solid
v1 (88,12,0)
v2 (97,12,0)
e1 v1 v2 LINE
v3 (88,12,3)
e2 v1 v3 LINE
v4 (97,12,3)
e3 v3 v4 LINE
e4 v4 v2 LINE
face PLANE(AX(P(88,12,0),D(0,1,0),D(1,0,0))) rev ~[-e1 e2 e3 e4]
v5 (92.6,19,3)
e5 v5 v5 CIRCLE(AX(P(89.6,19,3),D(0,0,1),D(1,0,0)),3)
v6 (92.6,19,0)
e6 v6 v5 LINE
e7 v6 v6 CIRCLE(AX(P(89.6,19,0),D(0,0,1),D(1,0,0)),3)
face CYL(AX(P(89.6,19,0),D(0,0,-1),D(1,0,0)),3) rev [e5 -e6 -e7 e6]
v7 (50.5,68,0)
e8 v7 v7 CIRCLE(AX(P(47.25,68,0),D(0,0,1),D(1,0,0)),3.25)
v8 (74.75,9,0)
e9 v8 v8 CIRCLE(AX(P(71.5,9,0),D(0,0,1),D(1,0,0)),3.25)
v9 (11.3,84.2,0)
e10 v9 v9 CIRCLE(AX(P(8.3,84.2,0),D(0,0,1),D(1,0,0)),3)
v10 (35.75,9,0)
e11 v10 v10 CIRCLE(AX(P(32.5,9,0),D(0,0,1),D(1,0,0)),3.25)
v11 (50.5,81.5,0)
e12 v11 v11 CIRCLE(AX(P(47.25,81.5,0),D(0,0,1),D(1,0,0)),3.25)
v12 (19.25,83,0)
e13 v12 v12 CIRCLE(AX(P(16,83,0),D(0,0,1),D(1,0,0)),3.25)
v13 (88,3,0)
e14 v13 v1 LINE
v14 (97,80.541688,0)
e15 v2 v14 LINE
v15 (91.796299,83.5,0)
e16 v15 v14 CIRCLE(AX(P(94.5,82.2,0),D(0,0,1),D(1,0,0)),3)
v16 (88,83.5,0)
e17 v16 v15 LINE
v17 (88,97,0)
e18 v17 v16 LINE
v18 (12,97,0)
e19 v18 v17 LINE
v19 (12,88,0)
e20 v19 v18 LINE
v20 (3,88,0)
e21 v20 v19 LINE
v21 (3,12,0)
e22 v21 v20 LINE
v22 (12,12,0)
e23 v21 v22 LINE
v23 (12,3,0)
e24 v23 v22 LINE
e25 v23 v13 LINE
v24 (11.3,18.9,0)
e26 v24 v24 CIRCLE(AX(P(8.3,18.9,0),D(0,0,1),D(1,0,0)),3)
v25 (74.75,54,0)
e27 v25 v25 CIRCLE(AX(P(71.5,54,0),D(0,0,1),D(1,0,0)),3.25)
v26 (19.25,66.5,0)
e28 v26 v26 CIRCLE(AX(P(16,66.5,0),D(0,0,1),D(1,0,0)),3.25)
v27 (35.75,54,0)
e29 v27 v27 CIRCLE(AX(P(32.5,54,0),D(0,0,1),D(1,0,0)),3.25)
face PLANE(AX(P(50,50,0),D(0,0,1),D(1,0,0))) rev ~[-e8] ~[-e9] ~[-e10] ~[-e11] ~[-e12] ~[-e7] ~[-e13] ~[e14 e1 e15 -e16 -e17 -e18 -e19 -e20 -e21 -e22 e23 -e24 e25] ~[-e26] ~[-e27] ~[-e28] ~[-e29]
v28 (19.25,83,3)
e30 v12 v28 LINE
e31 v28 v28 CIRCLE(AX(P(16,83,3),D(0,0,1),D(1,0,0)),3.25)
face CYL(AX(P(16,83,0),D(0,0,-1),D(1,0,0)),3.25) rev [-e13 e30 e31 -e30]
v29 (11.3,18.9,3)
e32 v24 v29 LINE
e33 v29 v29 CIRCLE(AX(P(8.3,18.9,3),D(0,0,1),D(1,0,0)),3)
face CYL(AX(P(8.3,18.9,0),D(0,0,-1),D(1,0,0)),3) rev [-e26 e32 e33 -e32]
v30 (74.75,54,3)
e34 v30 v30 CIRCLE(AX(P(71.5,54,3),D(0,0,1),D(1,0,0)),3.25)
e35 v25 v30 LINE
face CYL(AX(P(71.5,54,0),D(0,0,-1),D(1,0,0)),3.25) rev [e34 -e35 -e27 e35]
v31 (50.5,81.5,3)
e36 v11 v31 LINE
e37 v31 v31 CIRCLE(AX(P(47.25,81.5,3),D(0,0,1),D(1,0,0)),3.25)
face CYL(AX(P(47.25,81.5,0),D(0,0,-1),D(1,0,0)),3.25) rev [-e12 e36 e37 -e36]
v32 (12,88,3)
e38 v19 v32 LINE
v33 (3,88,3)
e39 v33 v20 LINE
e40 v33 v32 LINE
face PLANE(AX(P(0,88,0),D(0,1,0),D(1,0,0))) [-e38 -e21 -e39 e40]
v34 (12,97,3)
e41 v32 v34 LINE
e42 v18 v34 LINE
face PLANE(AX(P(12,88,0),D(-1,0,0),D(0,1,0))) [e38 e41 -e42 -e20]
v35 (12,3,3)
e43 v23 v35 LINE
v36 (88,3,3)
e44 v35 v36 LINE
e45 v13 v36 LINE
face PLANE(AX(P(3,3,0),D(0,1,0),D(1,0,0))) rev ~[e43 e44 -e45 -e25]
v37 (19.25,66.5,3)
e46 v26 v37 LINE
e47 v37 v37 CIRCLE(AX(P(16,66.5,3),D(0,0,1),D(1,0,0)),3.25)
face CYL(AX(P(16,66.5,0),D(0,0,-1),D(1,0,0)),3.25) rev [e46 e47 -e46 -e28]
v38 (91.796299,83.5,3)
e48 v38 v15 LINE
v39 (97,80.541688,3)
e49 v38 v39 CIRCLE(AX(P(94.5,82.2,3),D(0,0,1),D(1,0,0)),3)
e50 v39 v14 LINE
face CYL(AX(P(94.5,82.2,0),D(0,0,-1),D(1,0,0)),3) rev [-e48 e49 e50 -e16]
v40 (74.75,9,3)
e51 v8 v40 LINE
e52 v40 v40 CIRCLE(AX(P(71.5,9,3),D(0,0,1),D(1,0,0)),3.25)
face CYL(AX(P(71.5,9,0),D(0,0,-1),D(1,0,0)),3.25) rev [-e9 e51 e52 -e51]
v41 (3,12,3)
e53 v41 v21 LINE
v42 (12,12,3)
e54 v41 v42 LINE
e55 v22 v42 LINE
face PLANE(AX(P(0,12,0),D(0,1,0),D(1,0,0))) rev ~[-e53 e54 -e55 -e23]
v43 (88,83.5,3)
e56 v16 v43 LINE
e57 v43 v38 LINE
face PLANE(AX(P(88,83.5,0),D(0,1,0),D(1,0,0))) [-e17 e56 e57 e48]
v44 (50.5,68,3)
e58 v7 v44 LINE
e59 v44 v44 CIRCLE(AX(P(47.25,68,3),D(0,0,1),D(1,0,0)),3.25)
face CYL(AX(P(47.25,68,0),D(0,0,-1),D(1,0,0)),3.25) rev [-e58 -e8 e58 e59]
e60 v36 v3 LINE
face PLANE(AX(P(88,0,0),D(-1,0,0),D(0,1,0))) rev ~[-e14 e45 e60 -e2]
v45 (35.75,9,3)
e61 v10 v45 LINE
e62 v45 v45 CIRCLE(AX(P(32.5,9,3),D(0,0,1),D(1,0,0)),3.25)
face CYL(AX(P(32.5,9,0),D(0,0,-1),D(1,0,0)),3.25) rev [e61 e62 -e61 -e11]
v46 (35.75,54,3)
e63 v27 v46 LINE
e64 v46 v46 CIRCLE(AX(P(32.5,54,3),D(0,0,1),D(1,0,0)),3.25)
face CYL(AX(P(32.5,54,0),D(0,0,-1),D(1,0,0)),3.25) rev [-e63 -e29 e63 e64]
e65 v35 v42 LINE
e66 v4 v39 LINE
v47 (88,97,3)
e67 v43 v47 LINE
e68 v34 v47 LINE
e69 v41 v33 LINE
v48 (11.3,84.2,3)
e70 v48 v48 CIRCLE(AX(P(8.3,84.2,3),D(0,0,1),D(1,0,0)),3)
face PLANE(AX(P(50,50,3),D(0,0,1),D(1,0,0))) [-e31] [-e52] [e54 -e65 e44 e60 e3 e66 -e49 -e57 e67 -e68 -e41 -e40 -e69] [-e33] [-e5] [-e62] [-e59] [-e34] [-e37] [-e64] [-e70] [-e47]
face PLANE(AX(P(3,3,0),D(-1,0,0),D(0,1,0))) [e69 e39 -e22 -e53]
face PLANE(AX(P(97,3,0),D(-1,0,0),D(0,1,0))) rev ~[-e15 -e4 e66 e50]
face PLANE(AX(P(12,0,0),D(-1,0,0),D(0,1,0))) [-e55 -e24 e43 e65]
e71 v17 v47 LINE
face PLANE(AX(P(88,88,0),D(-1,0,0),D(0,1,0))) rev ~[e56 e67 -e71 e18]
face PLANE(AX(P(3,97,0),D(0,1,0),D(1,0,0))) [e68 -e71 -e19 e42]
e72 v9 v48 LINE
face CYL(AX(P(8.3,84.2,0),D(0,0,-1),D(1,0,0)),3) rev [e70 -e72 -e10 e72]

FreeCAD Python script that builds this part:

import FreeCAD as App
import Part
import Sketcher
from FreeCAD import Vector
Q = App.Units.Quantity

doc = App.newDocument("Part")
body = doc.addObject("PartDesign::Body", "Body")

sketch1 = body.newObject("Sketcher::SketchObject", "Sketch")
sketch1.AttachmentSupport = (doc.getObject("XY_Plane"), [""])
sketch1.MapMode = "FlatFace"
sketch1.addGeometry(Part.Circle(Vector(32.5, 54, 0), Vector(0, 0, 1), 3.2), False)
sketch1.addConstraint(Sketcher.Constraint("Diameter", 0, Q("6.5 mm")))
sketch1.addConstraint(Sketcher.Constraint("DistanceY", -1, 1, 0, 3, Q("54 mm")))
sketch1.addConstraint(Sketcher.Constraint("DistanceX", -1, 1, 0, 3, Q("32.5 mm")))
pad1 = body.newObject("PartDesign::Pad", "Pad")
pad1.Profile = sketch1
pad1.Length = 3
body2 = doc.addObject("PartDesign::Body", "Body001")

sketch2 = body2.newObject("Sketcher::SketchObject", "Sketch001")
sketch2.AttachmentSupport = (doc.getObject("XY_Plane001"), [""])
sketch2.MapMode = "FlatFace"
sketch2.addGeometry(Part.Circle(Vector(32.5, 9, 0), Vector(0, 0, 1), 3.2), False)
sketch2.addConstraint(Sketcher.Constraint("Diameter", 0, Q("6.5 mm")))
sketch2.addConstraint(Sketcher.Constraint("DistanceY", -1, 1, 0, 3, Q("9 mm")))
sketch2.addConstraint(Sketcher.Constraint("DistanceX", -1, 1, 0, 3, Q("32.5 mm")))
pad2 = body2.newObject("PartDesign::Pad", "Pad001")
pad2.Profile = sketch2
pad2.Length = 3
body3 = doc.addObject("PartDesign::Body", "Body002")

sketch3 = body3.newObject("Sketcher::SketchObject", "Sketch002")
sketch3.AttachmentSupport = (doc.getObject("XY_Plane002"), [""])
sketch3.MapMode = "FlatFace"
sketch3.addGeometry(Part.Circle(Vector(47.2, 68, 0), Vector(0, 0, 1), 3.2), False)
sketch3.addConstraint(Sketcher.Constraint("Diameter", 0, Q("6.5 mm")))
sketch3.addConstraint(Sketcher.Constraint("DistanceY", -1, 1, 0, 3, Q("68 mm")))
sketch3.addConstraint(Sketcher.Constraint("DistanceX", -1, 1, 0, 3, Q("47.25 mm")))
pad3 = body3.newObject("PartDesign::Pad", "Pad002")
pad3.Profile = sketch3
pad3.Length = 3
body4 = doc.addObject("PartDesign::Body", "Body003")

sketch4 = body4.newObject("Sketcher::SketchObject", "Sketch003")
sketch4.AttachmentSupport = (doc.getObject("XY_Plane003"), [""])
sketch4.MapMode = "FlatFace"
sketch4.addGeometry(Part.Circle(Vector(16, 66.5, 0), Vector(0, 0, 1), 3.2), False)
sketch4.addConstraint(Sketcher.Constraint("Diameter", 0, Q("6.5 mm")))
sketch4.addConstraint(Sketcher.Constraint("DistanceX", -1, 1, 0, 3, Q("16 mm")))
sketch4.addConstraint(Sketcher.Constraint("DistanceY", -1, 1, 0, 3, Q("66.5 mm")))
pad4 = body4.newObject("PartDesign::Pad", "Pad003")
pad4.Profile = sketch4
pad4.Length = 3
body5 = doc.addObject("PartDesign::Body", "Body004")

sketch5 = body5.newObject("Sketcher::SketchObject", "Sketch004")
sketch5.AttachmentSupport = (doc.getObject("XY_Plane004"), [""])
sketch5.MapMode = "FlatFace"
sketch5.addGeometry(Part.Circle(Vector(47.2, 81.5, 0), Vector(0, 0, 1), 3.2), False)
sketch5.addConstraint(Sketcher.Constraint("Diameter", 0, Q("6.5 mm")))
sketch5.addConstraint(Sketcher.Constraint("DistanceY", -1, 1, 0, 3, Q("81.5 mm")))
sketch5.addConstraint(Sketcher.Constraint("DistanceX", -1, 1, 0, 3, Q("47.25 mm")))
pad5 = body5.newObject("PartDesign::Pad", "Pad004")
pad5.Profile = sketch5
pad5.Length = 3
body6 = doc.addObject("PartDesign::Body", "Body005")

sketch6 = body6.newObject("Sketcher::SketchObject", "Sketch005")
sketch6.AttachmentSupport = (doc.getObject("XY_Plane005"), [""])
sketch6.MapMode = "FlatFace"
sketch6.addGeometry(Part.Circle(Vector(71.5, 9, 0), Vector(0, 0, 1), 3.2), False)
sketch6.addConstraint(Sketcher.Constraint("Diameter", 0, Q("6.5 mm")))
sketch6.addConstraint(Sketcher.Constraint("DistanceY", -1, 1, 0, 3, Q("9 mm")))
sketch6.addConstraint(Sketcher.Constraint("DistanceX", -1, 1, 0, 3, Q("71.5 mm")))
pad6 = body6.newObject("PartDesign::Pad", "Pad005")
pad6.Profile = sketch6
pad6.Length = 3
body7 = doc.addObject("PartDesign::Body", "Body006")

sketch7 = body7.newObject("Sketcher::SketchObject", "Sketch006")
sketch7.AttachmentSupport = (doc.getObject("XY_Plane006"), [""])
sketch7.MapMode = "FlatFace"
sketch7.addGeometry(Part.Circle(Vector(71.5, 54, 0), Vector(0, 0, 1), 3.2), False)
sketch7.addConstraint(Sketcher.Constraint("Diameter", 0, Q("6.5 mm")))
sketch7.addConstraint(Sketcher.Constraint("DistanceY", -1, 1, 0, 3, Q("54 mm")))
sketch7.addConstraint(Sketcher.Constraint("DistanceX", -1, 1, 0, 3, Q("71.5 mm")))
pad7 = body7.newObject("PartDesign::Pad", "Pad006")
pad7.Profile = sketch7
pad7.Length = 3
body8 = doc.addObject("PartDesign::Body", "Body007")
body8.AllowCompound = True

sketch8 = body8.newObject("Sketcher::SketchObject", "Sketch007")
sketch8.AttachmentSupport = (doc.getObject("XY_Plane007"), [""])
sketch8.MapMode = "FlatFace"
sketch8.addGeometry(Part.Circle(Vector(16, 83, 0), Vector(0, 0, 1), 3.2), False)
sketch8.addConstraint(Sketcher.Constraint("Diameter", 0, Q("6.5 mm")))
sketch8.addConstraint(Sketcher.Constraint("DistanceX", -1, 1, 0, 3, Q("16 mm")))
sketch8.addConstraint(Sketcher.Constraint("DistanceY", -1, 1, 0, 3, Q("83 mm")))
pad8 = body8.newObject("PartDesign::Pad", "Pad007")
pad8.Profile = sketch8
pad8.Length = 3
doc.recompute()

boolean = body8.newObject("PartDesign::Boolean", "Boolean")
boolean.Type = "Fuse"
boolean.addObjects([body])
doc.recompute()

boolean2 = body8.newObject("PartDesign::Boolean", "Boolean001")
boolean2.Type = "Fuse"
boolean2.addObjects([body2])
doc.recompute()

boolean3 = body8.newObject("PartDesign::Boolean", "Boolean002")
boolean3.Type = "Fuse"
boolean3.addObjects([body3])
doc.recompute()

boolean4 = body8.newObject("PartDesign::Boolean", "Boolean003")
boolean4.Type = "Fuse"
boolean4.addObjects([body4])
doc.recompute()

boolean5 = body8.newObject("PartDesign::Boolean", "Boolean004")
boolean5.Type = "Fuse"
boolean5.addObjects([body5])
doc.recompute()

boolean6 = body8.newObject("PartDesign::Boolean", "Boolean005")
boolean6.Type = "Fuse"
boolean6.addObjects([body6])
doc.recompute()

boolean7 = body8.newObject("PartDesign::Boolean", "Boolean006")
boolean7.Type = "Fuse"
boolean7.addObjects([body7])
body9 = doc.addObject("PartDesign::Body", "Body008")

sketch9 = body9.newObject("Sketcher::SketchObject", "Sketch008")
sketch9.AttachmentSupport = (doc.getObject("XY_Plane008"), [""])
sketch9.MapMode = "FlatFace"
sketch9.addGeometry(Part.LineSegment(Vector(88, 94, 0), Vector(88, 84, 0)), False)
sketch9.addGeometry(Part.LineSegment(Vector(88, 84, 0), Vector(98, 84, 0)), False)
sketch9.addGeometry(Part.LineSegment(Vector(98, 84, 0), Vector(98, 94, 0)), False)
sketch9.addGeometry(Part.LineSegment(Vector(98, 94, 0), Vector(88, 94, 0)), False)
sketch9.addConstraint(Sketcher.Constraint("Coincident", 0, 2, 1, 1))
sketch9.addConstraint(Sketcher.Constraint("Coincident", 1, 2, 2, 1))
sketch9.addConstraint(Sketcher.Constraint("Coincident", 2, 2, 3, 1))
sketch9.addConstraint(Sketcher.Constraint("Coincident", 3, 2, 0, 1))
sketch9.addConstraint(Sketcher.Constraint("Vertical", 0))
sketch9.addConstraint(Sketcher.Constraint("Horizontal", 1))
sketch9.addConstraint(Sketcher.Constraint("Vertical", 2))
sketch9.addConstraint(Sketcher.Constraint("Horizontal", 3))
sketch9.addConstraint(Sketcher.Constraint("Equal", 3, 0))
sketch9.addConstraint(Sketcher.Constraint("DistanceX", 1, 1, 1, 2, Q("10 mm")))
sketch9.addConstraint(Sketcher.Constraint("DistanceX", -1, 1, 0, 2, Q("88 mm")))
sketch9.addConstraint(Sketcher.Constraint("DistanceY", -1, 1, 0, 2, Q("83.5 mm")))
pad9 = body9.newObject("PartDesign::Pad", "Pad008")
pad9.Profile = sketch9
pad9.Length = 3
body10 = doc.addObject("PartDesign::Body", "Body009")

sketch10 = body10.newObject("Sketcher::SketchObject", "Sketch009")
sketch10.AttachmentSupport = (doc.getObject("XY_Plane009"), [""])
sketch10.MapMode = "FlatFace"
sketch10.addGeometry(Part.Circle(Vector(8.3, 18.9, 0), Vector(0, 0, 1), 3), False)
sketch10.addConstraint(Sketcher.Constraint("Diameter", 0, Q("6 mm")))
sketch10.addConstraint(Sketcher.Constraint("DistanceX", -1, 1, 0, 3, Q("8.3 mm")))
sketch10.addConstraint(Sketcher.Constraint("DistanceY", -1, 1, 0, 3, Q("18.9 mm")))
pad10 = body10.newObject("PartDesign::Pad", "Pad009")
pad10.Profile = sketch10
pad10.Length = 3
body11 = doc.addObject("PartDesign::Body", "Body010")

sketch11 = body11.newObject("Sketcher::SketchObject", "Sketch010")
sketch11.AttachmentSupport = (doc.getObject("XY_Plane010"), [""])
sketch11.MapMode = "FlatFace"
sketch11.addGeometry(Part.Circle(Vector(8.3, 84.2, 0), Vector(0, 0, 1), 3), False)
sketch11.addConstraint(Sketcher.Constraint("Diameter", 0, Q("6 mm")))
sketch11.addConstraint(Sketcher.Constraint("DistanceX", -1, 1, 0, 3, Q("8.3 mm")))
sketch11.addConstraint(Sketcher.Constraint("DistanceY", -1, 1, 0, 3, Q("84.2 mm")))
pad11 = body11.newObject("PartDesign::Pad", "Pad010")
pad11.Profile = sketch11
pad11.Length = 3
body12 = doc.addObject("PartDesign::Body", "Body011")

sketch12 = body12.newObject("Sketcher::SketchObject", "Sketch011")
sketch12.AttachmentSupport = (doc.getObject("XY_Plane011"), [""])
sketch12.MapMode = "FlatFace"
sketch12.addGeometry(Part.Circle(Vector(89.6, 19, 0), Vector(0, 0, 1), 3), False)
sketch12.addConstraint(Sketcher.Constraint("Diameter", 0, Q("6 mm")))
sketch12.addConstraint(Sketcher.Constraint("DistanceY", -1, 1, 0, 3, Q("19 mm")))
sketch12.addConstraint(Sketcher.Constraint("DistanceX", -1, 1, 0, 3, Q("89.6 mm")))
pad12 = body12.newObject("PartDesign::Pad", "Pad011")
pad12.Profile = sketch12
pad12.Length = 3
body13 = doc.addObject("PartDesign::Body", "Body012")
body13.AllowCompound = True

sketch13 = body13.newObject("Sketcher::SketchObject", "Sketch012")
sketch13.AttachmentSupport = (doc.getObject("XY_Plane012"), [""])
sketch13.MapMode = "FlatFace"
sketch13.addGeometry(Part.Circle(Vector(94.5, 82.2, 0), Vector(0, 0, 1), 3), False)
sketch13.addConstraint(Sketcher.Constraint("Diameter", 0, Q("6 mm")))
sketch13.addConstraint(Sketcher.Constraint("DistanceX", -1, 1, 0, 3, Q("94.5 mm")))
sketch13.addConstraint(Sketcher.Constraint("DistanceY", -1, 1, 0, 3, Q("82.2 mm")))
pad13 = body13.newObject("PartDesign::Pad", "Pad012")
pad13.Profile = sketch13
pad13.Length = 3
doc.recompute()

boolean8 = body13.newObject("PartDesign::Boolean", "Boolean007")
boolean8.Type = "Fuse"
boolean8.addObjects([body10])
doc.recompute()

boolean9 = body13.newObject("PartDesign::Boolean", "Boolean008")
boolean9.Type = "Fuse"
boolean9.addObjects([body11])
doc.recompute()

boolean10 = body13.newObject("PartDesign::Boolean", "Boolean009")
boolean10.Type = "Fuse"
boolean10.addObjects([body12])
body14 = doc.addObject("PartDesign::Body", "Body013")

sketch14 = body14.newObject("Sketcher::SketchObject", "Sketch013")
sketch14.AttachmentSupport = (doc.getObject("XY_Plane013"), [""])
sketch14.MapMode = "FlatFace"
sketch14.addGeometry(Part.LineSegment(Vector(88, 12, 0), Vector(88, 0, 0)), False)
sketch14.addGeometry(Part.LineSegment(Vector(88, 0, 0), Vector(100, 0, 0)), False)
sketch14.addGeometry(Part.LineSegment(Vector(100, 0, 0), Vector(100, 12, 0)), False)
sketch14.addGeometry(Part.LineSegment(Vector(100, 12, 0), Vector(88, 12, 0)), False)
sketch14.addConstraint(Sketcher.Constraint("Coincident", 0, 2, 1, 1))
sketch14.addConstraint(Sketcher.Constraint("Coincident", 1, 2, 2, 1))
sketch14.addConstraint(Sketcher.Constraint("Coincident", 2, 2, 3, 1))
sketch14.addConstraint(Sketcher.Constraint("Coincident", 3, 2, 0, 1))
sketch14.addConstraint(Sketcher.Constraint("Vertical", 0))
sketch14.addConstraint(Sketcher.Constraint("Horizontal", 1))
sketch14.addConstraint(Sketcher.Constraint("Vertical", 2))
sketch14.addConstraint(Sketcher.Constraint("Horizontal", 3))
sketch14.addConstraint(Sketcher.Constraint("PointOnObject", 0, 2, -1))
sketch14.addConstraint(Sketcher.Constraint("Equal", 3, 0))
sketch14.addConstraint(Sketcher.Constraint("DistanceX", 1, 1, 1, 2, Q("12 mm")))
sketch14.addConstraint(Sketcher.Constraint("DistanceX", -1, 1, 0, 2, Q("88 mm")))
pad14 = body14.newObject("PartDesign::Pad", "Pad013")
pad14.Profile = sketch14
pad14.Length = 3
body15 = doc.addObject("PartDesign::Body", "Body014")

sketch15 = body15.newObject("Sketcher::SketchObject", "Sketch014")
sketch15.AttachmentSupport = (doc.getObject("XY_Plane014"), [""])
sketch15.MapMode = "FlatFace"
sketch15.addGeometry(Part.LineSegment(Vector(88, 100, 0), Vector(88, 88, 0)), False)
sketch15.addGeometry(Part.LineSegment(Vector(88, 88, 0), Vector(100, 88, 0)), False)
sketch15.addGeometry(Part.LineSegment(Vector(100, 88, 0), Vector(100, 100, 0)), False)
sketch15.addGeometry(Part.LineSegment(Vector(100, 100, 0), Vector(88, 100, 0)), False)
sketch15.addConstraint(Sketcher.Constraint("Coincident", 0, 2, 1, 1))
sketch15.addConstraint(Sketcher.Constraint("Coincident", 1, 2, 2, 1))
sketch15.addConstraint(Sketcher.Constraint("Coincident", 2, 2, 3, 1))
sketch15.addConstraint(Sketcher.Constraint("Coincident", 3, 2, 0, 1))
sketch15.addConstraint(Sketcher.Constraint("Vertical", 0))
sketch15.addConstraint(Sketcher.Constraint("Horizontal", 1))
sketch15.addConstraint(Sketcher.Constraint("Vertical", 2))
sketch15.addConstraint(Sketcher.Constraint("Horizontal", 3))
sketch15.addConstraint(Sketcher.Constraint("Equal", 3, 0))
sketch15.addConstraint(Sketcher.Constraint("DistanceX", 1, 1, 1, 2, Q("12 mm")))
sketch15.addConstraint(Sketcher.Constraint("DistanceX", -1, 1, 0, 2, Q("88 mm")))
sketch15.addConstraint(Sketcher.Constraint("DistanceY", -1, 1, 0, 2, Q("88 mm")))
pad15 = body15.newObject("PartDesign::Pad", "Pad014")
pad15.Profile = sketch15
pad15.Length = 3
body16 = doc.addObject("PartDesign::Body", "Body015")

sketch16 = body16.newObject("Sketcher::SketchObject", "Sketch015")
sketch16.AttachmentSupport = (doc.getObject("XY_Plane015"), [""])
sketch16.MapMode = "FlatFace"
sketch16.addGeometry(Part.LineSegment(Vector(0, 100, 0), Vector(0, 88, 0)), False)
sketch16.addGeometry(Part.LineSegment(Vector(0, 88, 0), Vector(12, 88, 0)), False)
sketch16.addGeometry(Part.LineSegment(Vector(12, 88, 0), Vector(12, 100, 0)), False)
sketch16.addGeometry(Part.LineSegment(Vector(12, 100, 0), Vector(0, 100, 0)), False)
sketch16.addConstraint(Sketcher.Constraint("Coincident", 0, 2, 1, 1))
sketch16.addConstraint(Sketcher.Constraint("Coincident", 1, 2, 2, 1))
sketch16.addConstraint(Sketcher.Constraint("Coincident", 2, 2, 3, 1))
sketch16.addConstraint(Sketcher.Constraint("Coincident", 3, 2, 0, 1))
sketch16.addConstraint(Sketcher.Constraint("Vertical", 0))
sketch16.addConstraint(Sketcher.Constraint("Horizontal", 1))
sketch16.addConstraint(Sketcher.Constraint("Vertical", 2))
sketch16.addConstraint(Sketcher.Constraint("Horizontal", 3))
sketch16.addConstraint(Sketcher.Constraint("PointOnObject", 0, 2, -2))
sketch16.addConstraint(Sketcher.Constraint("Equal", 3, 0))
sketch16.addConstraint(Sketcher.Constraint("DistanceX", 1, 1, 1, 2, Q("12 mm")))
sketch16.addConstraint(Sketcher.Constraint("DistanceY", -1, 1, 0, 2, Q("88 mm")))
pad16 = body16.newObject("PartDesign::Pad", "Pad015")
pad16.Profile = sketch16
pad16.Length = 3
body17 = doc.addObject("PartDesign::Body", "Body016")
body17.AllowCompound = True

sketch17 = body17.newObject("Sketcher::SketchObject", "Sketch016")
sketch17.AttachmentSupport = (doc.getObject("XY_Plane016"), [""])
sketch17.MapMode = "FlatFace"
sketch17.addGeometry(Part.LineSegment(Vector(0, 12, 0), Vector(0, 0, 0)), False)
sketch17.addGeometry(Part.LineSegment(Vector(0, 0, 0), Vector(12, 0, 0)), False)
sketch17.addGeometry(Part.LineSegment(Vector(12, 0, 0), Vector(12, 12, 0)), False)
sketch17.addGeometry(Part.LineSegment(Vector(12, 12, 0), Vector(0, 12, 0)), False)
sketch17.addConstraint(Sketcher.Constraint("Coincident", 0, 2, 1, 1))
sketch17.addConstraint(Sketcher.Constraint("Coincident", 1, 2, 2, 1))
sketch17.addConstraint(Sketcher.Constraint("Coincident", 2, 2, 3, 1))
sketch17.addConstraint(Sketcher.Constraint("Coincident", 3, 2, 0, 1))
sketch17.addConstraint(Sketcher.Constraint("Vertical", 0))
sketch17.addConstraint(Sketcher.Constraint("Horizontal", 1))
sketch17.addConstraint(Sketcher.Constraint("Vertical", 2))
sketch17.addConstraint(Sketcher.Constraint("Horizontal", 3))
sketch17.addConstraint(Sketcher.Constraint("Coincident", 0, 2, -1, 1))
sketch17.addConstraint(Sketcher.Constraint("Equal", 3, 0))
sketch17.addConstraint(Sketcher.Constraint("DistanceX", 1, 1, 1, 2, Q("12 mm")))
pad17 = body17.newObject("PartDesign::Pad", "Pad016")
pad17.Profile = sketch17
pad17.Length = 3
doc.recompute()

boolean11 = body17.newObject("PartDesign::Boolean", "Boolean010")
boolean11.Type = "Fuse"
boolean11.addObjects([body14])
doc.recompute()

boolean12 = body17.newObject("PartDesign::Boolean", "Boolean011")
boolean12.Type = "Fuse"
boolean12.addObjects([body15])
doc.recompute()

boolean13 = body17.newObject("PartDesign::Boolean", "Boolean012")
boolean13.Type = "Fuse"
boolean13.addObjects([body16])
body18 = doc.addObject("PartDesign::Body", "Body017")

sketch18 = body18.newObject("Sketcher::SketchObject", "Sketch017")
sketch18.AttachmentSupport = (doc.getObject("XY_Plane017"), [""])
sketch18.MapMode = "FlatFace"
sketch18.addGeometry(Part.LineSegment(Vector(3, 97, 0), Vector(3, 3, 0)), False)
sketch18.addGeometry(Part.LineSegment(Vector(3, 3, 0), Vector(97, 3, 0)), False)
sketch18.addGeometry(Part.LineSegment(Vector(97, 3, 0), Vector(97, 97, 0)), False)
sketch18.addGeometry(Part.LineSegment(Vector(97, 97, 0), Vector(3, 97, 0)), False)
sketch18.addConstraint(Sketcher.Constraint("Coincident", 0, 2, 1, 1))
sketch18.addConstraint(Sketcher.Constraint("Coincident", 1, 2, 2, 1))
sketch18.addConstraint(Sketcher.Constraint("Coincident", 2, 2, 3, 1))
sketch18.addConstraint(Sketcher.Constraint("Coincident", 3, 2, 0, 1))
sketch18.addConstraint(Sketcher.Constraint("Vertical", 0))
sketch18.addConstraint(Sketcher.Constraint("Horizontal", 1))
sketch18.addConstraint(Sketcher.Constraint("Vertical", 2))
sketch18.addConstraint(Sketcher.Constraint("Horizontal", 3))
sketch18.addConstraint(Sketcher.Constraint("Equal", 3, 0))
sketch18.addConstraint(Sketcher.Constraint("DistanceX", 1, 1, 1, 2, Q("94 mm")))
sketch18.addConstraint(Sketcher.Constraint("DistanceX", -1, 1, 0, 2, Q("3 mm")))
sketch18.addConstraint(Sketcher.Constraint("DistanceY", -1, 1, 0, 2, Q("3 mm")))
pad18 = body18.newObject("PartDesign::Pad", "Pad017")
pad18.Profile = sketch18
pad18.Length = 3
doc.recompute()

boolean14 = body18.newObject("PartDesign::Boolean", "Boolean013")
boolean14.Type = "Cut"
boolean14.addObjects([body17])
doc.recompute()

boolean15 = body18.newObject("PartDesign::Boolean", "Boolean014")
boolean15.Type = "Cut"
boolean15.addObjects([body13])
doc.recompute()

boolean16 = body18.newObject("PartDesign::Boolean", "Boolean015")
boolean16.Type = "Cut"
boolean16.addObjects([body9])
doc.recompute()

boolean17 = body18.newObject("PartDesign::Boolean", "Boolean016")
boolean17.Type = "Cut"
boolean17.addObjects([body8])

doc.recompute()
